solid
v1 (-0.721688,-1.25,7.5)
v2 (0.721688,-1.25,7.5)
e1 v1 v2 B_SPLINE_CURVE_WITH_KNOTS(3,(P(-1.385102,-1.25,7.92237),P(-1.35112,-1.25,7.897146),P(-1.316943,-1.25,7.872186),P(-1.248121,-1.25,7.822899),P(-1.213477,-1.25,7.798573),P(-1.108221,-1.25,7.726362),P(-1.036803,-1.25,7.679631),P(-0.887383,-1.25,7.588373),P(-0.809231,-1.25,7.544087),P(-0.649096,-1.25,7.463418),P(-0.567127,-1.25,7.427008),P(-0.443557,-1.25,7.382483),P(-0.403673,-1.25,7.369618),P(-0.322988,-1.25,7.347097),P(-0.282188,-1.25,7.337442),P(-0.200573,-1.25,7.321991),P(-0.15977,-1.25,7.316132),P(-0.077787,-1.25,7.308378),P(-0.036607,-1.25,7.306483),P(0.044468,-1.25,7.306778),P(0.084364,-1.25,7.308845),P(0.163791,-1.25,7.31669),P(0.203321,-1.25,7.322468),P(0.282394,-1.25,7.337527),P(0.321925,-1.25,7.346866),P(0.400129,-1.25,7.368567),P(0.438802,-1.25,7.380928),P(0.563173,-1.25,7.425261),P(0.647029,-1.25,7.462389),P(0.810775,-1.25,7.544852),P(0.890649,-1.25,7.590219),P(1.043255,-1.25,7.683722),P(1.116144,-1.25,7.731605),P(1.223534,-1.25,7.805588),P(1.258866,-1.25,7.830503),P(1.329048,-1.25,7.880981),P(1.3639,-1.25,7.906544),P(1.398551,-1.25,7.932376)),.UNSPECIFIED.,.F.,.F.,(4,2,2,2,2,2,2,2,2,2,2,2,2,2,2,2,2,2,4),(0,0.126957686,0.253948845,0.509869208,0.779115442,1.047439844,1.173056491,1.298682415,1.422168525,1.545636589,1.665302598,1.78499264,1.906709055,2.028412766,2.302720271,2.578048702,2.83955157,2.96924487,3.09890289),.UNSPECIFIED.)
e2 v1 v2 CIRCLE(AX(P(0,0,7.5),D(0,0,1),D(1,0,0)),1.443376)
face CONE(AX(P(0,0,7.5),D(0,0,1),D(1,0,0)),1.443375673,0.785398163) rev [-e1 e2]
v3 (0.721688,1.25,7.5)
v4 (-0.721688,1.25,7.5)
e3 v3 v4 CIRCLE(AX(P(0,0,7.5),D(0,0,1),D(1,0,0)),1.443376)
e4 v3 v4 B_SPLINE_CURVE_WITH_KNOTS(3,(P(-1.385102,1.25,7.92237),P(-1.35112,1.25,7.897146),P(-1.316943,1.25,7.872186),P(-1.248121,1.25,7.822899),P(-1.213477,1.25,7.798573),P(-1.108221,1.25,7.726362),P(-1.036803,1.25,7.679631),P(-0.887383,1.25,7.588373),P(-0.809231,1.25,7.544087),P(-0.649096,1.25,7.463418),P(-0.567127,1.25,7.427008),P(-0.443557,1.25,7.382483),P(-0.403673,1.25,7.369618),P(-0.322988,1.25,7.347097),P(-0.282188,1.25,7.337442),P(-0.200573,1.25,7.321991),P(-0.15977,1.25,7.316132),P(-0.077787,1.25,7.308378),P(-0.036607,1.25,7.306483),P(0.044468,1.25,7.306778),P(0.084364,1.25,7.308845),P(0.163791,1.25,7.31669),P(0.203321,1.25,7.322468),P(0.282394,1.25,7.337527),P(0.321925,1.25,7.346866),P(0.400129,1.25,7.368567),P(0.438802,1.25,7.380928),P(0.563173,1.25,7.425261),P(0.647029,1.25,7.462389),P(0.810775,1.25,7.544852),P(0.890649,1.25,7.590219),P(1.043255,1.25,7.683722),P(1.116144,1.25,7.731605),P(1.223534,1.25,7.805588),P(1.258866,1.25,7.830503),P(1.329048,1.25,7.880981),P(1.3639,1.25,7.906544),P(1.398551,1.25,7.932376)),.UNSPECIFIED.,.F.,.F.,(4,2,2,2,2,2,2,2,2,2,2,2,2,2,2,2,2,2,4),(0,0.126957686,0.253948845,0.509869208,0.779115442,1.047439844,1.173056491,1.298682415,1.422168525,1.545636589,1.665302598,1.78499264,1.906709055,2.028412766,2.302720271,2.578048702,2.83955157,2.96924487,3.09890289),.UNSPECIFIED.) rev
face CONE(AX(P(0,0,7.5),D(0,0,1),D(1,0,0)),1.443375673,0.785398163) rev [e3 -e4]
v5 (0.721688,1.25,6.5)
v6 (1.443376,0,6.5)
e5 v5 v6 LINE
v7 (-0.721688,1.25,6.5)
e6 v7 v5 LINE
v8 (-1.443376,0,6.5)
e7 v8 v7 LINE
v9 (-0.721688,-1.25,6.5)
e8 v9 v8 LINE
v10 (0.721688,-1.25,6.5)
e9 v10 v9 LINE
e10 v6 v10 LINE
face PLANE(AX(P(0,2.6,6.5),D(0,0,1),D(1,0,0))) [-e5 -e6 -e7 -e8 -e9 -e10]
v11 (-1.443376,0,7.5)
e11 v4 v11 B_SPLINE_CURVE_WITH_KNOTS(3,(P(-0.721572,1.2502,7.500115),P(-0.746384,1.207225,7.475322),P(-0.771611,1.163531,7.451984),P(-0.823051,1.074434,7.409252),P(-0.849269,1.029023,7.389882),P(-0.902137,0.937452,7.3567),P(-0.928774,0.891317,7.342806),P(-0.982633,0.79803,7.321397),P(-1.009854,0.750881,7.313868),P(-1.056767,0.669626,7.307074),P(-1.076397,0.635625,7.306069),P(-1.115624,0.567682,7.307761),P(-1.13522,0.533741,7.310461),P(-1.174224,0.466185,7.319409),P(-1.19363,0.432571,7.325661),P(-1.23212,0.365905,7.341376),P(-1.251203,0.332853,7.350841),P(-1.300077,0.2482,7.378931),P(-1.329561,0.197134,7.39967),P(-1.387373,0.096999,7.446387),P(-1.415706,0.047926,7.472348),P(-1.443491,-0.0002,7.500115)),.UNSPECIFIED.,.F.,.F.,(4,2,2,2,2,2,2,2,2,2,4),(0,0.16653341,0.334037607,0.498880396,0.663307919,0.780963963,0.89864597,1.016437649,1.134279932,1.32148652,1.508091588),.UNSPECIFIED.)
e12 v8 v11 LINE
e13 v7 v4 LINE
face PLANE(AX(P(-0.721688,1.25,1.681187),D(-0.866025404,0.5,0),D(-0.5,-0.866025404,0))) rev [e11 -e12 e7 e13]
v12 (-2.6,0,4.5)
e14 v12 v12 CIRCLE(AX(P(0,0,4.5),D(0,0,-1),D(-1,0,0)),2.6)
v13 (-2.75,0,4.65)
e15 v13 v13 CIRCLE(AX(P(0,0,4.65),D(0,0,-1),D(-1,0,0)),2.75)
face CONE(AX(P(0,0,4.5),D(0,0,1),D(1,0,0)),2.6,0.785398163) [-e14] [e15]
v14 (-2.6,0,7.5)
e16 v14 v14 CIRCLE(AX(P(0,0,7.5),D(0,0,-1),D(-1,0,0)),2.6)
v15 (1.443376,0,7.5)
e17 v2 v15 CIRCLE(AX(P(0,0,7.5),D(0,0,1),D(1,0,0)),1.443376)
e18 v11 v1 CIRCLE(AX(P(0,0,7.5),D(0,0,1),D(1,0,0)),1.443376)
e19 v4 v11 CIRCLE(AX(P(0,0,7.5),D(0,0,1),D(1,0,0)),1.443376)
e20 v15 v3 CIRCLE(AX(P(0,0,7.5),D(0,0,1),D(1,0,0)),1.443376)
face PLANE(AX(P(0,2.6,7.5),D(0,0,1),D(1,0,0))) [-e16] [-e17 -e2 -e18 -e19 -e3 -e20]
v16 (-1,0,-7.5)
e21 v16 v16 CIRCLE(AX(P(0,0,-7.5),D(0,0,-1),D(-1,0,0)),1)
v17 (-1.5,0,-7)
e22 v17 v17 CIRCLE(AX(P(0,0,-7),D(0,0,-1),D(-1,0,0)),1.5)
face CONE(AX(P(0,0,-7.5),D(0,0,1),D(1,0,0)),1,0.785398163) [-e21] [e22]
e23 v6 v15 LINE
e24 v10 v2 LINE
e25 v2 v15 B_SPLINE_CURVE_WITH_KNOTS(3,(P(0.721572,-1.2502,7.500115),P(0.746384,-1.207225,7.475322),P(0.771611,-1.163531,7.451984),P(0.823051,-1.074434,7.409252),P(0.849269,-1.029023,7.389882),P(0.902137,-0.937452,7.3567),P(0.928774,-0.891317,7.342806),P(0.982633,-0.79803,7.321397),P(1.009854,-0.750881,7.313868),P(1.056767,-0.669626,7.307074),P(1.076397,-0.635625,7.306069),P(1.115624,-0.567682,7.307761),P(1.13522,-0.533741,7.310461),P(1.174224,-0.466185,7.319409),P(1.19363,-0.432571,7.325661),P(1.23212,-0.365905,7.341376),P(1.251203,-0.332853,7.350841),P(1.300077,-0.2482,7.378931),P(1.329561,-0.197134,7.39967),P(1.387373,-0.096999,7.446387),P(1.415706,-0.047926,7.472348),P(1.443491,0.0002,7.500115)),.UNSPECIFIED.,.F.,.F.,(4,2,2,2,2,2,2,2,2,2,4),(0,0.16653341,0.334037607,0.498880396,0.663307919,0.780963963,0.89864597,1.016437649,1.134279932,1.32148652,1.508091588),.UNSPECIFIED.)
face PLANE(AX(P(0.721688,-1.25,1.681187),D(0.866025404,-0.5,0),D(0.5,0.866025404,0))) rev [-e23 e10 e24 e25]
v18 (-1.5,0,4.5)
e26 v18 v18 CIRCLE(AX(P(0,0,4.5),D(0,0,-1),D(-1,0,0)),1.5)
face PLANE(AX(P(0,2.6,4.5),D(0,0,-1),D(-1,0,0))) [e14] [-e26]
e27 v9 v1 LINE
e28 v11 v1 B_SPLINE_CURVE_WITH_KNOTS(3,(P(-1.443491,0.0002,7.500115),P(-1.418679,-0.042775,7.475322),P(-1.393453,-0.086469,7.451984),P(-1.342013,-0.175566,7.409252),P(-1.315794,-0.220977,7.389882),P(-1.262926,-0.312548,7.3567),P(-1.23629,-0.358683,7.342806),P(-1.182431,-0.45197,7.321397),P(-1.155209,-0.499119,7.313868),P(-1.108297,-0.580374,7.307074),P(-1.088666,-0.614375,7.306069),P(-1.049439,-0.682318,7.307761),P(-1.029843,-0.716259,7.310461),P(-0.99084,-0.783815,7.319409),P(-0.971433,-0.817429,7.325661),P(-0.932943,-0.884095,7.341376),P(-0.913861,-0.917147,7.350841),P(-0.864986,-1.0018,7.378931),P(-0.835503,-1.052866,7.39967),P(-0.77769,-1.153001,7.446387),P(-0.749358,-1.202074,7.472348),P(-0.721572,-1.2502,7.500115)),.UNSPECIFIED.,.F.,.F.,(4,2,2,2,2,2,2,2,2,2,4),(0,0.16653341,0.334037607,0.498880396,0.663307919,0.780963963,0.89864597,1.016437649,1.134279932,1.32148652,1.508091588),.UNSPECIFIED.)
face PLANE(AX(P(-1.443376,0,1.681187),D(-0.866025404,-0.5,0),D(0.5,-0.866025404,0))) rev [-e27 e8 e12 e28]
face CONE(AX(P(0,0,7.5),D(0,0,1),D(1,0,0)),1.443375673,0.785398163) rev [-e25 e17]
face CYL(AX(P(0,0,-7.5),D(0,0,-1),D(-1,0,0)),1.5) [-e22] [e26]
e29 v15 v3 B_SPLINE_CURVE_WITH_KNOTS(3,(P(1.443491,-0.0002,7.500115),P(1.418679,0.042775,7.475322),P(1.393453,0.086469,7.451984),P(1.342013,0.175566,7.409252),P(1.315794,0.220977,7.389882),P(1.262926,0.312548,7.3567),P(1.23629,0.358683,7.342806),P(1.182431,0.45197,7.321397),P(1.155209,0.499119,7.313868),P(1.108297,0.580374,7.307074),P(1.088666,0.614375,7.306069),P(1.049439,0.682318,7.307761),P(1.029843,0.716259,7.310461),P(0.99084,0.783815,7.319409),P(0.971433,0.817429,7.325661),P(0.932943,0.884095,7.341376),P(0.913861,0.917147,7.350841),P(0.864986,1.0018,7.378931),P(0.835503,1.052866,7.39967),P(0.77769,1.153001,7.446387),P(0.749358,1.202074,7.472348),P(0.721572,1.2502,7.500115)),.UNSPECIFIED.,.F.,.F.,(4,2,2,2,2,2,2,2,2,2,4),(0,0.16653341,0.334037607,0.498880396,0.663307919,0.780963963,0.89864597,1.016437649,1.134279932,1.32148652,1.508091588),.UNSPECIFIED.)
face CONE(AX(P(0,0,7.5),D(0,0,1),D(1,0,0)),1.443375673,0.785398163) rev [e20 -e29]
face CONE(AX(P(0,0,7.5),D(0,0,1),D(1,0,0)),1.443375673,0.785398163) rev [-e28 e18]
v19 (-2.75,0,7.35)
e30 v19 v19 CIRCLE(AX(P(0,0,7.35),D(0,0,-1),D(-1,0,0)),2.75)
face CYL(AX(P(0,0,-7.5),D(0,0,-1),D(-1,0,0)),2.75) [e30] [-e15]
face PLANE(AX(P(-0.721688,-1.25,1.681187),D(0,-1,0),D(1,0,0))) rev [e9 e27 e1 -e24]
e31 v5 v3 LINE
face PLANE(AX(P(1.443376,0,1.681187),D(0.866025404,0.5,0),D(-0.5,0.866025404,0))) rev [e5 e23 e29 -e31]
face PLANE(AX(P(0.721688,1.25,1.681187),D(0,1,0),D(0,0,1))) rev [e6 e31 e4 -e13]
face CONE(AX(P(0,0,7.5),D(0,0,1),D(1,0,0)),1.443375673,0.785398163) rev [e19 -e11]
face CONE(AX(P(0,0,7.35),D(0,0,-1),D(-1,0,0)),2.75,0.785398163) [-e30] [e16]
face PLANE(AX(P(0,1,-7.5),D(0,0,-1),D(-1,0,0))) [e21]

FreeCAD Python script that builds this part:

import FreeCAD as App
import Part
import Sketcher
Q = App.Units.Quantity


def faces_at(feature, points):
    """Names of the faces that lie closest to the given points."""
    faces = feature.Shape.Faces
    near = lambda p: min(range(len(faces)), key=lambda i: faces[i].distToShape(Part.Vertex(*p))[0])
    return sorted({f"Face{near(p) + 1}" for p in points})


def add_polygon(sketch, points):
    """Adds a closed chain of lines whose ends are joined by coincident constraints."""
    first, n = sketch.GeometryCount, len(points)
    for a, b in zip(points, points[1:] + points[:1]):
        sketch.addGeometry(Part.LineSegment(App.Vector(*a, 0), App.Vector(*b, 0)), False)
    for i in range(n):
        sketch.addConstraint(Sketcher.Constraint("Coincident", first + i, 2, first + (i + 1) % n, 1))

doc = App.newDocument("Part")
body = doc.addObject("PartDesign::Body", "Body")

sketch1 = body.newObject("Sketcher::SketchObject", "Sketch")
sketch1.AttachmentSupport = (doc.getObject("YZ_Plane"), [""])
sketch1.MapMode = "FlatFace"
add_polygon(sketch1, [(2.75, 4.65), (2.75, 7.35), (2.6, 7.5), (0, 7.5), (0, -7.5), (1, -7.5), (1.5, -7), (1.5, 4.5), (2.6, 4.5)])
sketch1.addConstraint([
    Sketcher.Constraint("Vertical", 0),
    Sketcher.Constraint("Horizontal", 2),
    Sketcher.Constraint("Vertical", 3),
    Sketcher.Constraint("Horizontal", 4),
    Sketcher.Constraint("Vertical", 6),
    Sketcher.Constraint("Horizontal", 7),
    Sketcher.Constraint("Symmetric", 2, 2, 3, 2, -1, 1),
    Sketcher.Constraint("Perpendicular", 1, 5),
    Sketcher.Constraint("Parallel", 5, 8),
    Sketcher.Constraint("Vertical", 1, 2, 7, 2),
    Sketcher.Constraint("Equal", 1, 8),
    Sketcher.Constraint("DistanceX", 4, 1, 4, 2, Q("1 mm")),
    Sketcher.Constraint("DistanceY", 3, 2, 3, 1, Q("15 mm")),
    Sketcher.Constraint("DistanceX", 2, 2, 2, 1, Q("2.6 mm")),
    Sketcher.Constraint("DistanceX", 7, 1, 7, 2, Q("1.1 mm")),
    Sketcher.Constraint("DistanceY", 0, 1, 0, 2, Q("2.7 mm")),
    Sketcher.Constraint("DistanceY", 6, 1, 6, 2, Q("11.5 mm")),
])
revolution = body.newObject("PartDesign::Revolution", "Revolution")
revolution.Profile = sketch1
revolution.ReferenceAxis = (sketch1, ["V_Axis"])
revolution.Angle = 360

sketch2 = body.newObject("Sketcher::SketchObject", "Sketch001")
sketch2.AttachmentSupport = (doc.getObject("XY_Plane"), [""])
sketch2.MapMode = "FlatFace"
sketch2.AttachmentOffset = App.Placement(App.Vector(0, 0, 7.5), App.Rotation())
add_polygon(sketch2, [(0.721688, 1.25), (-0.721688, 1.25), (-1.443376, 0), (-0.721688, -1.25), (0.721688, -1.25), (1.443376, 0)])
sketch2.addConstraint([
    Sketcher.Constraint("Horizontal", 0),
    Sketcher.Constraint("Horizontal", 3),
    Sketcher.Constraint("Symmetric", 0, 2, 3, 2, -1, 1),
    Sketcher.Constraint("Symmetric", 1, 2, 4, 2, -1, 1),
    Sketcher.Constraint("PointOnObject", 1, 2, -1),
    Sketcher.Constraint("Parallel", 2, 5),
    Sketcher.Constraint("Vertical", 0, 2, 2, 2),
    Sketcher.Constraint("Angle", 1, Q("-120 deg")),
    Sketcher.Constraint("DistanceY", 2, 2, 0, 2, Q("2.5 mm")),
    Sketcher.Constraint("DistanceX", 0, 2, 0, 1, Q("1.443376 mm")),
])
pocket1 = body.newObject("PartDesign::Pocket", "Pocket")
pocket1.Profile = sketch2
pocket1.Length = 1
body2 = doc.addObject("PartDesign::Body", "Body001")

sketch3 = body2.newObject("Sketcher::SketchObject", "Sketch002")
sketch3.AttachmentSupport = (doc.getObject("XY_Plane001"), [""])
sketch3.MapMode = "FlatFace"
sketch3.AttachmentOffset = App.Placement(App.Vector(0, 0, 7.5), App.Rotation())
sketch3.addGeometry(Part.Circle(App.Vector(0, 0, 0), App.Vector(0, 0, 1), 1.443376), False)
sketch3.addConstraint([
    Sketcher.Constraint("Coincident", 0, 3, -1, 1),
    Sketcher.Constraint("Diameter", 0, Q("2.886751 mm")),
])
pad1 = body2.newObject("PartDesign::Pad", "Pad")
pad1.Profile = sketch3
pad1.Length = 0.5
pad1.Reversed = True
doc.recompute()

datumplane = body2.newObject("PartDesign::Plane", "DatumPlane")
datumplane.AttachmentSupport = (doc.getObject("XY_Plane001"), [""])
datumplane.MapMode = "FlatFace"
datumplane.AttachmentOffset = App.Placement(App.Vector(0, 0, 7.5), App.Rotation())
draft = body2.newObject("PartDesign::Draft", "Draft")
draft.Base = (pad1, faces_at(pad1, [(-1.443, 0, 7.25)]))
draft.NeutralPlane = (datumplane, [""])
draft.Angle = 45
draft.Reversed = True
doc.recompute()

boolean = body.newObject("PartDesign::Boolean", "Boolean")
boolean.Type = "Cut"
boolean.addObjects([body2])

doc.recompute()
